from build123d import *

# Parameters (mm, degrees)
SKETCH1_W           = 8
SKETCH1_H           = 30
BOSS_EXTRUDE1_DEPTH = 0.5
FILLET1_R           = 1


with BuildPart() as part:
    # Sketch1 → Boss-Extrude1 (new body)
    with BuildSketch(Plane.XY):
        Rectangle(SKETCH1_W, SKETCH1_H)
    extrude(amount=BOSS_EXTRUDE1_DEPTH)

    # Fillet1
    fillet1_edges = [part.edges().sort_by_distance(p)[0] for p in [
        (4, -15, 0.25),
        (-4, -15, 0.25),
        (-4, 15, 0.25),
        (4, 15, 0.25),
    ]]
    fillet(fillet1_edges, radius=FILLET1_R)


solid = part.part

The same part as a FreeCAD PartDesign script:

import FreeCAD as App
import Part
import Sketcher

V = App.Vector
Q = App.Units.Quantity


def edges_at(feature, points):
    """Names of the edges that pass closest to the given points."""
    edges = feature.Shape.Edges
    near = lambda p: min(range(len(edges)), key=lambda i: edges[i].distToShape(Part.Vertex(*p))[0])
    return sorted({f"Edge{near(p) + 1}" for p in points})


def add_polygon(sketch, points):
    """Adds a closed chain of lines whose ends are joined by coincident constraints."""
    first, n = sketch.GeometryCount, len(points)
    for a, b in zip(points, points[1:] + points[:1]):
        sketch.addGeometry(Part.LineSegment(App.Vector(*a, 0), App.Vector(*b, 0)), False)
    for i in range(n):
        sketch.addConstraint(Sketcher.Constraint("Coincident", first + i, 2, first + (i + 1) % n, 1))

doc = App.newDocument("Part")
body = doc.addObject("PartDesign::Body", "Body")

sketch1 = body.newObject("Sketcher::SketchObject", "Sketch")
sketch1.AttachmentSupport = (doc.getObject("XY_Plane"), [""])
sketch1.MapMode = "FlatFace"
add_polygon(sketch1, [(-4, 15), (-4, -15), (4, -15), (4, 15)])
sketch1.addConstraint([
    Sketcher.Constraint("Vertical", 0),
    Sketcher.Constraint("Horizontal", 1),
    Sketcher.Constraint("Vertical", 2),
    Sketcher.Constraint("Horizontal", 3),
    Sketcher.Constraint("Symmetric", 0, 2, 2, 2, -1, 1),
    Sketcher.Constraint("DistanceX", 1, 1, 1, 2, Q("8 mm")),
    Sketcher.Constraint("DistanceY", 0, 2, 0, 1, Q("30 mm")),
])
pad1 = body.newObject("PartDesign::Pad", "Pad")
pad1.Profile = sketch1
pad1.Length = 0.5
doc.recompute()

fillet = body.newObject("PartDesign::Fillet", "Fillet")
fillet.Base = (pad1, edges_at(pad1, [
    (4, -15, 0.25),
    (-4, -15, 0.25),
    (-4, 15, 0.25),
    (4, 15, 0.25),
]))
fillet.Radius = 1

doc.recompute()
